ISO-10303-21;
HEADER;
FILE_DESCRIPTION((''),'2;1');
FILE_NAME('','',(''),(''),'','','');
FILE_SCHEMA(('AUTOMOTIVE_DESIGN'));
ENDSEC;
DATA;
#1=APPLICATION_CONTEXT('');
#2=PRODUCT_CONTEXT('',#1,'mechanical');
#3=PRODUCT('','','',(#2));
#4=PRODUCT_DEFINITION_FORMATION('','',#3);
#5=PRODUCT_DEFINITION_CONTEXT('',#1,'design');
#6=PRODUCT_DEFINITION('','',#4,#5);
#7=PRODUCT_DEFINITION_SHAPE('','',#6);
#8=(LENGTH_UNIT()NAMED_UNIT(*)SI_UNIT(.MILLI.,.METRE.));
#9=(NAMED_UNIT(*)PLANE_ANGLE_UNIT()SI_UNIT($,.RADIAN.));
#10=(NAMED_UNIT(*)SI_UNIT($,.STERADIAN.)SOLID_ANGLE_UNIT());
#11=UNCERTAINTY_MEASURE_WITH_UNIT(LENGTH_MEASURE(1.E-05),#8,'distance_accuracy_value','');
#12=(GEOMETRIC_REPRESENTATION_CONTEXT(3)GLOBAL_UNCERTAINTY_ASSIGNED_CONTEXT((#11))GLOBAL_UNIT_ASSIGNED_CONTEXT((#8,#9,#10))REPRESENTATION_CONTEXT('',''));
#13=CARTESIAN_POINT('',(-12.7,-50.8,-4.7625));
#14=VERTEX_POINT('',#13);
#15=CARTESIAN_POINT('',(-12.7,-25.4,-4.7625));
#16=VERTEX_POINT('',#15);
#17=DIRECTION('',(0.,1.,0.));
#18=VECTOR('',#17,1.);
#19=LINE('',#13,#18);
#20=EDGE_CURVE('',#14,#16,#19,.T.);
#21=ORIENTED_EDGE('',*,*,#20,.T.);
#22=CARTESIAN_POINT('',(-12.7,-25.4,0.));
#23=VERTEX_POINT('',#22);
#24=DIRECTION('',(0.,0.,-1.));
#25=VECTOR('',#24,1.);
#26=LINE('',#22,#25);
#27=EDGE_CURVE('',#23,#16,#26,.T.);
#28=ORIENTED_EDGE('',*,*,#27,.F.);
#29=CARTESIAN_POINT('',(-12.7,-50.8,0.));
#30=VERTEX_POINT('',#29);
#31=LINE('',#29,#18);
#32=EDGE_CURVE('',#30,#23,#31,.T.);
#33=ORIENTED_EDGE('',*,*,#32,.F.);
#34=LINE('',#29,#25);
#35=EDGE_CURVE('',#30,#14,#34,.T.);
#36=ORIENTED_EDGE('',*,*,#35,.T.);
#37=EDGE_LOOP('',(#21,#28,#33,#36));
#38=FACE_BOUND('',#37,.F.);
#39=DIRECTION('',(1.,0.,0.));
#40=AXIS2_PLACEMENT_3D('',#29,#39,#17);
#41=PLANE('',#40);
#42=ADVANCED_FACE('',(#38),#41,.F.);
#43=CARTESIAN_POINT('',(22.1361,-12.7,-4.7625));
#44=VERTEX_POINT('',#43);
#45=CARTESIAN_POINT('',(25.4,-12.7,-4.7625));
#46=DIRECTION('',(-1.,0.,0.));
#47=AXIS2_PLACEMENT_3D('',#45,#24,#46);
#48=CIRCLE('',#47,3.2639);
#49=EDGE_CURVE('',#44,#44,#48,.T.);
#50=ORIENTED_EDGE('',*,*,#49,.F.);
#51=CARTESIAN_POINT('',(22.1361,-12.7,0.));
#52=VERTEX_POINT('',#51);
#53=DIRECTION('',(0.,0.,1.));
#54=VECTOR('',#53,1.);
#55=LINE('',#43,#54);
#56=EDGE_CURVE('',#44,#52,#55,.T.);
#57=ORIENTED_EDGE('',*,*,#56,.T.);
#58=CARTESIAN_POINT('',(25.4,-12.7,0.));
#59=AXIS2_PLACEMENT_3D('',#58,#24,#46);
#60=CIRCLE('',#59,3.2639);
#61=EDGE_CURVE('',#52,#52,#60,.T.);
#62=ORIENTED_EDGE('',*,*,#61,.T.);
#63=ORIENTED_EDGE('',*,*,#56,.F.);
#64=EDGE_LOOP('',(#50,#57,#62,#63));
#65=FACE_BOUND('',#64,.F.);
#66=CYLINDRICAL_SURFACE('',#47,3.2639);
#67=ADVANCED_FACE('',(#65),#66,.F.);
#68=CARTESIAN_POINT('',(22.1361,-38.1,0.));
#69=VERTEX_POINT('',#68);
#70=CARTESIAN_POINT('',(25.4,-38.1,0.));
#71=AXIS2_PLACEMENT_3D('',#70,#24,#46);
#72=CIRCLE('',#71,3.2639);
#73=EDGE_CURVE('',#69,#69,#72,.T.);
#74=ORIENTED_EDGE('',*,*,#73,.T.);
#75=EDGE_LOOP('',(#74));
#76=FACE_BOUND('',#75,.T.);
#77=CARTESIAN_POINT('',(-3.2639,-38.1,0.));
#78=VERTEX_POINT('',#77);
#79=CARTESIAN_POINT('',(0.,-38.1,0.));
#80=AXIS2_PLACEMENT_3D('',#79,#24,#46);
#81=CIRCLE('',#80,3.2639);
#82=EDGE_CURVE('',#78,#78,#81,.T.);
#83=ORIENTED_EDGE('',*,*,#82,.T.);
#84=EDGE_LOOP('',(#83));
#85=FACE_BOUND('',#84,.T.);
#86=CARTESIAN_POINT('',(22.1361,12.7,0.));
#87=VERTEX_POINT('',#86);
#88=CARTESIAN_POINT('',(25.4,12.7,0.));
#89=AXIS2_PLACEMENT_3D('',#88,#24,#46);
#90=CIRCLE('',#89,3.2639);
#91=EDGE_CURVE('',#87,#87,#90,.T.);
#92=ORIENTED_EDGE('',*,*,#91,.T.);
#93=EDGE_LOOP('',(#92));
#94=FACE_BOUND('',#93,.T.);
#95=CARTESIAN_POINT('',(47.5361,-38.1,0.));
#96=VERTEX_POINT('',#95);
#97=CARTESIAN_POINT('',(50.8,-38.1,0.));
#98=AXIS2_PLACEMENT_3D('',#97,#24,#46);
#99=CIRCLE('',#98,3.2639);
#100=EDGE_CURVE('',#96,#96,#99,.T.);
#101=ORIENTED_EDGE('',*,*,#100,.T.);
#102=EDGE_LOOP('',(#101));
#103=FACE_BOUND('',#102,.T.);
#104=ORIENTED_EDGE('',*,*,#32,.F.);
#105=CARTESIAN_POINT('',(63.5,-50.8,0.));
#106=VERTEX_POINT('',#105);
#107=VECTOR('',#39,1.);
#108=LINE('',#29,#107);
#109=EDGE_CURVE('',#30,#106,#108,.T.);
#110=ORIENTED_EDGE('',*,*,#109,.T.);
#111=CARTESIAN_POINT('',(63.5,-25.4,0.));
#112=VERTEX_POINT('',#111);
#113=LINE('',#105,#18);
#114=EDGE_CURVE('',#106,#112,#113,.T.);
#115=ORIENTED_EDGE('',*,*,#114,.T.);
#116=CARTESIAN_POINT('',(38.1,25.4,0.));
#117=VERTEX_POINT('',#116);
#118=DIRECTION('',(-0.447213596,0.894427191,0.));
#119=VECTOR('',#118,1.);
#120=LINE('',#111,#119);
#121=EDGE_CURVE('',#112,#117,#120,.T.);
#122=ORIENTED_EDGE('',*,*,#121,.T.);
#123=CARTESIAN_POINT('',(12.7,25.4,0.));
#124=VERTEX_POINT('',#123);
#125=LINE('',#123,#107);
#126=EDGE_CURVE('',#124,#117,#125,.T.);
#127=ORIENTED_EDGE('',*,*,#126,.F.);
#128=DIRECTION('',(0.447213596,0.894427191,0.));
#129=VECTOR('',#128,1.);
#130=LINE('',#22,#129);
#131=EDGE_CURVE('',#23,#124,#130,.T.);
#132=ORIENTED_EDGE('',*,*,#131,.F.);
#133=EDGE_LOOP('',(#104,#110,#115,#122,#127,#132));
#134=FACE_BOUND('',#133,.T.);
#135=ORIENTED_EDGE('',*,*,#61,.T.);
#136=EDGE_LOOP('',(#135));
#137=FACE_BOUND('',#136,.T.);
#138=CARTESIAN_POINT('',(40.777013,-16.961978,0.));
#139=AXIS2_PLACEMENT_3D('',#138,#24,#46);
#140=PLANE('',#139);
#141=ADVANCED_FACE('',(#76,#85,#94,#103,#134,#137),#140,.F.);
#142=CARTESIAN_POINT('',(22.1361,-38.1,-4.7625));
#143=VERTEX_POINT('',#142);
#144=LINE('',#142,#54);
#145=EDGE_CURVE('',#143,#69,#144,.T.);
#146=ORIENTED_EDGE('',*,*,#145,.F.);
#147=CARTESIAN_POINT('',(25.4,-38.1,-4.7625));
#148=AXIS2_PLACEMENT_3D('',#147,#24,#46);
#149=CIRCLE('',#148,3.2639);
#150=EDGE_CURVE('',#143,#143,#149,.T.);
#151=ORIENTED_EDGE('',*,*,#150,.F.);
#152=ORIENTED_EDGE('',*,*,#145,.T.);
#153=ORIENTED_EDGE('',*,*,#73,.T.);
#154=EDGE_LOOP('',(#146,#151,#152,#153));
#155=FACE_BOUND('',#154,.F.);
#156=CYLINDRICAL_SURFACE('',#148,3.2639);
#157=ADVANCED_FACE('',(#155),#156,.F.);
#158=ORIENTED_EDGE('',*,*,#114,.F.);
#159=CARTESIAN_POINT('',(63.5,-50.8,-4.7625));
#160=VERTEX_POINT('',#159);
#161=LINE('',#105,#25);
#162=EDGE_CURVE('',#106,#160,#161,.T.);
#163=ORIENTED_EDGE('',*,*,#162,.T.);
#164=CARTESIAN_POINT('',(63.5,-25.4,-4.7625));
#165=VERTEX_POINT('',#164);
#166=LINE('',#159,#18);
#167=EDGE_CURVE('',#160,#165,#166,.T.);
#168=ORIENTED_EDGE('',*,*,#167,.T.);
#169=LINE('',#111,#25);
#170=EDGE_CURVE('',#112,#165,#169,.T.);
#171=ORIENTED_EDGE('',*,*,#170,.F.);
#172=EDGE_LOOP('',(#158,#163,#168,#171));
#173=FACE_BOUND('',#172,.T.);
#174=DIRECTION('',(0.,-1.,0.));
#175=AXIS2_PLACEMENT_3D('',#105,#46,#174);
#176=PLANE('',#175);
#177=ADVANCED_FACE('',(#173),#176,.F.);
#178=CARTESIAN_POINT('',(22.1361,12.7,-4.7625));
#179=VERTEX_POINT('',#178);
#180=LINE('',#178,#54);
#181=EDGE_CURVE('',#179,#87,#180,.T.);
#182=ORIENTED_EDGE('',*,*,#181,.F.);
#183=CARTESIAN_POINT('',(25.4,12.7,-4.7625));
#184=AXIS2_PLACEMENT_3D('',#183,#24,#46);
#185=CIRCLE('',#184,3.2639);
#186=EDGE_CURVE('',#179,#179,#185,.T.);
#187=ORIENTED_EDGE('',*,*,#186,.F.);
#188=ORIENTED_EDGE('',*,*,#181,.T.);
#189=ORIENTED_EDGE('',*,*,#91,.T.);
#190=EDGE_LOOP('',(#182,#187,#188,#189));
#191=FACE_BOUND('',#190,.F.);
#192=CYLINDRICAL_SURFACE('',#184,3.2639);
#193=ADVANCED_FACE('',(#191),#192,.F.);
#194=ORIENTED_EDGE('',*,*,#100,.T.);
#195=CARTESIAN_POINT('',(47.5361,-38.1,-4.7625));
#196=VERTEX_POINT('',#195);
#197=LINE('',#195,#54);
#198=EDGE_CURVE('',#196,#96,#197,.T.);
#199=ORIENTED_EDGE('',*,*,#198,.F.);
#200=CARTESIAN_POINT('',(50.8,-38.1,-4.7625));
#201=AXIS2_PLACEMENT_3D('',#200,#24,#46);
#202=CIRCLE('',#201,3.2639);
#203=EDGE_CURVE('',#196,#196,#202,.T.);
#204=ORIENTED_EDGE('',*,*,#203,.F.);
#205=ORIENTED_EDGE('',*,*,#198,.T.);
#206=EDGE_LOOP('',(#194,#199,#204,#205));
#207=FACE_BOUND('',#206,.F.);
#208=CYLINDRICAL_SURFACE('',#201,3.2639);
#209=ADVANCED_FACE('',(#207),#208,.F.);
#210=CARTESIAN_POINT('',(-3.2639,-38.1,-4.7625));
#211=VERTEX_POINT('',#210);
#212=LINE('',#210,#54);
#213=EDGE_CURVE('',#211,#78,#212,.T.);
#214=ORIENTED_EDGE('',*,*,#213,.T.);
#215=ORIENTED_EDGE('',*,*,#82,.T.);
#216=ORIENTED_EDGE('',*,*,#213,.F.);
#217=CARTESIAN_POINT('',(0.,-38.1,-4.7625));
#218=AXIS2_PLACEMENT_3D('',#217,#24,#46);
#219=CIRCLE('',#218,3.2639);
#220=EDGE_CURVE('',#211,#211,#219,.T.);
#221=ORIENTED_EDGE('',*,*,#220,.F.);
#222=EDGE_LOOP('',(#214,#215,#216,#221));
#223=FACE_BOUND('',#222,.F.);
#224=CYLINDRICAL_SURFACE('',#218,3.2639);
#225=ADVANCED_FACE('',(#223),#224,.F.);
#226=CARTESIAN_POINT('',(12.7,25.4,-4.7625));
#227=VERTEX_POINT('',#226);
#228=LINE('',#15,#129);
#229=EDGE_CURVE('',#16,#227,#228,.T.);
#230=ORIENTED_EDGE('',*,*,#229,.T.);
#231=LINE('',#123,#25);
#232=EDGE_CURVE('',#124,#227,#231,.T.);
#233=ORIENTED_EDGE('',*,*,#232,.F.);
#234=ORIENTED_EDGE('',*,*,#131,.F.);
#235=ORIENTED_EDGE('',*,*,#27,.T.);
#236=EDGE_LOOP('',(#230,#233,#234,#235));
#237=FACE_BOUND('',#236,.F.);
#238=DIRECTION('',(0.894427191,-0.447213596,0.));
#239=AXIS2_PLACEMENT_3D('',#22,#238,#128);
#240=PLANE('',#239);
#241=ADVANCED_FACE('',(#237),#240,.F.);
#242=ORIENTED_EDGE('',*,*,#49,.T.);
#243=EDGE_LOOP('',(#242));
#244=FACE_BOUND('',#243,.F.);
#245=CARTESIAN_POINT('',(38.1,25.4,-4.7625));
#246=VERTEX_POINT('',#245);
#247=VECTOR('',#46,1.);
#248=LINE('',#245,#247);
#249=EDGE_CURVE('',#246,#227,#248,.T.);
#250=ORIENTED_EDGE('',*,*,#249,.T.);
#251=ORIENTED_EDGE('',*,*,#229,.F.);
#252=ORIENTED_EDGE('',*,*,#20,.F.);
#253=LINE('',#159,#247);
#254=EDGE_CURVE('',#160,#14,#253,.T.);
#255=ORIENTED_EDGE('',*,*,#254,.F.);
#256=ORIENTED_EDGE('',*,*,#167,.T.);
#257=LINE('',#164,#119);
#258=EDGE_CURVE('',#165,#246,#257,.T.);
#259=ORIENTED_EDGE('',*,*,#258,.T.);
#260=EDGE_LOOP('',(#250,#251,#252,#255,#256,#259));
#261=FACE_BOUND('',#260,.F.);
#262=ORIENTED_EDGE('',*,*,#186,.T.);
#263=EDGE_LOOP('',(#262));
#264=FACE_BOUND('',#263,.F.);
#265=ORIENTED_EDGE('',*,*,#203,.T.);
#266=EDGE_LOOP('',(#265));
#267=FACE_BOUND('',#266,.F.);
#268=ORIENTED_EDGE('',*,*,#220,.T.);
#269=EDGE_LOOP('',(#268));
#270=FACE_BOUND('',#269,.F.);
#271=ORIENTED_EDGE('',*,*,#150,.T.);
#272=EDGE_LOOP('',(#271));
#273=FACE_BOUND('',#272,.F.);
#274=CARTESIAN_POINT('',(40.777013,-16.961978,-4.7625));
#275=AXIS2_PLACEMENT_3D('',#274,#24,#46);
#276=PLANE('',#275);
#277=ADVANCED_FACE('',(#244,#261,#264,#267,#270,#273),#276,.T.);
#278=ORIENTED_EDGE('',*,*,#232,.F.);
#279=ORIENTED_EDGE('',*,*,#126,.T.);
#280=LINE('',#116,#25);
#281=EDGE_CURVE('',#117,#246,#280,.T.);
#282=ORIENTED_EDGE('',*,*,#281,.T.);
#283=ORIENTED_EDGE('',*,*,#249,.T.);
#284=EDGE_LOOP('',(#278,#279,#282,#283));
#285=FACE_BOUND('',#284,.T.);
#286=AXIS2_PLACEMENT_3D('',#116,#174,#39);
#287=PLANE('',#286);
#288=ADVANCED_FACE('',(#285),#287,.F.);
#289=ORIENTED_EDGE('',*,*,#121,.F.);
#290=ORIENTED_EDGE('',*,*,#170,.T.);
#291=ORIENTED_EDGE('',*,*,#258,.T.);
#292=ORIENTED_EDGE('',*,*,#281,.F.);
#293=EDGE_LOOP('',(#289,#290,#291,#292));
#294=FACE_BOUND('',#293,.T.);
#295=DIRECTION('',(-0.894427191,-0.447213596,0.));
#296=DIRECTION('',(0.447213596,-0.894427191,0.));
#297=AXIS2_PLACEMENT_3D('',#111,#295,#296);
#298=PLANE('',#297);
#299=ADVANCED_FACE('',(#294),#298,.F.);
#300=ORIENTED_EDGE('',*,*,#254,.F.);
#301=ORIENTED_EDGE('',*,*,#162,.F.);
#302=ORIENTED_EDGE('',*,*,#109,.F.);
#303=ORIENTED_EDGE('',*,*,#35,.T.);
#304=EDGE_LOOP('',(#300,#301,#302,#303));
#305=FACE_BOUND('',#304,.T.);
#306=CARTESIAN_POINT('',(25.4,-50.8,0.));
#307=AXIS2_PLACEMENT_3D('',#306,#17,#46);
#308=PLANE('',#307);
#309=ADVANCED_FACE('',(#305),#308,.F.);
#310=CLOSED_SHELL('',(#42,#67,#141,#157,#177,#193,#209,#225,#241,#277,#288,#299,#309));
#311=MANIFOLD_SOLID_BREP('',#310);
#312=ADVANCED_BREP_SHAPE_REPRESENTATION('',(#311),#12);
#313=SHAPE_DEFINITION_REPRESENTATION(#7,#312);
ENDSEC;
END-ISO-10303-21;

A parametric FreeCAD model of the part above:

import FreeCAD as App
import Part
import Sketcher
Q = App.Units.Quantity

doc = App.newDocument("Part")
body = doc.addObject("PartDesign::Body", "Body")

sketch1 = body.newObject("Sketcher::SketchObject", "Sketch")
sketch1.AttachmentSupport = (doc.getObject("XY_Plane"), [""])
sketch1.MapMode = "FlatFace"
sketch1.addGeometry([
    Part.LineSegment(App.Vector(25, 25, 0), App.Vector(13, 25, 0)),
    Part.LineSegment(App.Vector(13, 25, 0), App.Vector(-13, -25, 0)),
    Part.LineSegment(App.Vector(-13, -25, 0), App.Vector(-13, -51, 0)),
    Part.LineSegment(App.Vector(-13, -51, 0), App.Vector(25, -51, 0)),
    Part.LineSegment(App.Vector(25, -51, 0), App.Vector(25, 25, 0)),
], False)
sketch1.addConstraint([
    Sketcher.Constraint("Coincident", 0, 2, 1, 1),
    Sketcher.Constraint("Coincident", 1, 2, 2, 1),
    Sketcher.Constraint("Coincident", 2, 2, 3, 1),
    Sketcher.Constraint("Coincident", 3, 2, 4, 1),
    Sketcher.Constraint("Coincident", 4, 2, 0, 1),
    Sketcher.Constraint("Horizontal", 0),
    Sketcher.Constraint("Vertical", 2),
    Sketcher.Constraint("Horizontal", 3),
    Sketcher.Constraint("Vertical", 4),
    Sketcher.Constraint("Symmetric", 0, 2, 1, 2, -1, 1),
    Sketcher.Constraint("DistanceY", 2, 2, 2, 1, Q("1 in")),
    Sketcher.Constraint("DistanceY", 4, 1, 4, 2, Q("3 in")),
    Sketcher.Constraint("DistanceX", 0, 2, 0, 1, Q("0.5 in")),
    Sketcher.Constraint("DistanceX", 3, 1, 3, 2, Q("1.5 in")),
])
pad1 = body.newObject("PartDesign::Pad", "Pad")
pad1.Profile = sketch1
pad1.Length = Q("0.1875 in")
pad1.Reversed = True
body2 = doc.addObject("PartDesign::Body", "Body001")
doc.recompute()

body2.BaseFeature = body
doc.recompute()

mirroring = doc.addObject("Part::Mirroring", "Mirroring")
mirroring.Source = body
mirroring.Base = App.Vector(25.4, 25.4, -4.7625)
mirroring.Normal = App.Vector(1, 0, 0)
body3 = doc.addObject("PartDesign::Body", "Body002")
body3.BaseFeature = mirroring
boolean = body2.newObject("PartDesign::Boolean", "Boolean")
boolean.Type = "Fuse"
boolean.addObjects([body3])
doc.recompute()

sketch2 = body2.newObject("Sketcher::SketchObject", "Sketch001")
sketch2.AttachmentSupport = (doc.getObject("XY_Plane001"), [""])
sketch2.MapMode = "FlatFace"
sketch2.AttachmentOffset = App.Placement(App.Vector(0, 0, -0.1875 * 25.4), App.Rotation())
sketch2.addGeometry([
    Part.Circle(App.Vector(25.4, -38.1, 0), App.Vector(0, 0, 1), 3.3),
    Part.Circle(App.Vector(25.4, -12.7, 0), App.Vector(0, 0, 1), 3.3),
    Part.Circle(App.Vector(25.4, 12.7, 0), App.Vector(0, 0, 1), 3.3),
    Part.Circle(App.Vector(50.8, -38.1, 0), App.Vector(0, 0, 1), 3.3),
    Part.Circle(App.Vector(0, -38.1, 0), App.Vector(0, 0, 1), 3.3),
], False)
sketch2.addConstraint([
    Sketcher.Constraint("Equal", 0, 1),
    Sketcher.Constraint("Equal", 1, 2),
    Sketcher.Constraint("Equal", 2, 3),
    Sketcher.Constraint("Equal", 3, 4),
    Sketcher.Constraint("Symmetric", 1, 3, 2, 3, -1),
    Sketcher.Constraint("PointOnObject", 4, 3, -2),
    Sketcher.Constraint("Horizontal", 0, 3, 3, 3),
    Sketcher.Constraint("Horizontal", 3, 3, 4, 3),
    Sketcher.Constraint("Vertical", 0, 3, 1, 3),
    Sketcher.Constraint("Diameter", 0, Q("0.257 in")),
    Sketcher.Constraint("DistanceX", -1, 1, 0, 3, Q("1 in")),
    Sketcher.Constraint("DistanceX", -1, 1, 3, 3, Q("2 in")),
    Sketcher.Constraint("DistanceY", 0, 3, 1, 3, Q("1 in")),
    Sketcher.Constraint("DistanceY", 1, 3, 2, 3, Q("1 in")),
])
pocket1 = body2.newObject("PartDesign::Pocket", "Pocket")
pocket1.Profile = sketch2
pocket1.Type = "ThroughAll"
pocket1.Reversed = True
mirroring.Visibility = False

doc.recompute()
